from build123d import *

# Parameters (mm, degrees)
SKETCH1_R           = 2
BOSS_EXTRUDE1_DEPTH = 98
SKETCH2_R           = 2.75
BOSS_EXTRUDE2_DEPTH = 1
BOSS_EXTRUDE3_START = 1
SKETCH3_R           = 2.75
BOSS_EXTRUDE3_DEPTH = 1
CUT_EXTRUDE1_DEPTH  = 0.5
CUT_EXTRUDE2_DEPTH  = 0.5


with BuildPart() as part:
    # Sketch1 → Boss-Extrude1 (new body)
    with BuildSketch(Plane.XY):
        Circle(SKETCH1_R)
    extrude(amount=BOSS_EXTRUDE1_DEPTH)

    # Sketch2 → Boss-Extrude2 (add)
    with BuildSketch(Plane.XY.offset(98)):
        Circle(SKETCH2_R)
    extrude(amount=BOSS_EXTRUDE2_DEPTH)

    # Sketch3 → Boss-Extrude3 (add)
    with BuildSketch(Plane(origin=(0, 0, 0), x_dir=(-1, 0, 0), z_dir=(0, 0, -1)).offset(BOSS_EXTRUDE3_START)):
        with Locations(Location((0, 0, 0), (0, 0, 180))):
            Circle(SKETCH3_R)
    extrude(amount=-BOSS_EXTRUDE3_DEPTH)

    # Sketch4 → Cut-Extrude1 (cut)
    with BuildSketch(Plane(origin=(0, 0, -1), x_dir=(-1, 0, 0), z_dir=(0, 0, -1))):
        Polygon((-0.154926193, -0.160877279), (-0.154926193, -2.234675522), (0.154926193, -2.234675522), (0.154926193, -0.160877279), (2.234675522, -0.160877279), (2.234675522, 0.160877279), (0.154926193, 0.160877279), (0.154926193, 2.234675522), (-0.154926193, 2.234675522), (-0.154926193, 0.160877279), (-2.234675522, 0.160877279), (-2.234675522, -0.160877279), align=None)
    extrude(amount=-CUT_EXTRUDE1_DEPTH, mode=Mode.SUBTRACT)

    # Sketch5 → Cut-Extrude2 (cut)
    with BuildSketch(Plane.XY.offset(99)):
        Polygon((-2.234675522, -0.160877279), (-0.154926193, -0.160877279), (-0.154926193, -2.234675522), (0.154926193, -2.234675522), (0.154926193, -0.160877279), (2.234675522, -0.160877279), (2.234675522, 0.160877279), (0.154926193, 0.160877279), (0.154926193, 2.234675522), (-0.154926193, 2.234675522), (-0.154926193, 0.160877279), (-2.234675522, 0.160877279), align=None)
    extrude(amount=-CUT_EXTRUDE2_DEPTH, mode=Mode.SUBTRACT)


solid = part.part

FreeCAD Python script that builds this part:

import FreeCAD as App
import Part
import Sketcher
from FreeCAD import Vector


def add_polygon(sketch, points):
    """Adds a closed chain of lines whose ends are joined by coincident constraints."""
    first, n = sketch.GeometryCount, len(points)
    for a, b in zip(points, points[1:] + points[:1]):
        sketch.addGeometry(Part.LineSegment(App.Vector(*a, 0), App.Vector(*b, 0)), False)
    for i in range(n):
        sketch.addConstraint(Sketcher.Constraint("Coincident", first + i, 2, first + (i + 1) % n, 1))

doc = App.newDocument("Part")
body = doc.addObject("PartDesign::Body", "Body")

# Sketch on XY plane
sketch1 = body.newObject("Sketcher::SketchObject", "Sketch")
sketch1.AttachmentSupport = (doc.getObject("XY_Plane"), [""])
sketch1.MapMode = "FlatFace"
sketch1.addGeometry(Part.Circle(Vector(0, 0, 0), Vector(0, 0, 1), 2), False)
sketch1.addConstraint([
    Sketcher.Constraint("Coincident", 0, 3, -1, 1),
    Sketcher.Constraint("Diameter", 0, 4.0),
])
pad1 = body.newObject("PartDesign::Pad", "Pad")
pad1.Profile = sketch1
pad1.Length = 98

# Sketch on XY plane
sketch2 = body.newObject("Sketcher::SketchObject", "Sketch001")
sketch2.AttachmentSupport = (doc.getObject("XY_Plane"), [""])
sketch2.MapMode = "FlatFace"
sketch2.AttachmentOffset = App.Placement(Vector(0, 0, 98), App.Rotation())
sketch2.addGeometry(Part.Circle(Vector(0, 0, 0), Vector(0, 0, 1), 2.8), False)
sketch2.addConstraint([
    Sketcher.Constraint("Coincident", 0, 3, -1, 1),
    Sketcher.Constraint("Diameter", 0, 5.5),
])
pad2 = body.newObject("PartDesign::Pad", "Pad001")
pad2.Profile = sketch2
pad2.Length = 1

# Sketch on XY plane
sketch3 = body.newObject("Sketcher::SketchObject", "Sketch002")
sketch3.AttachmentSupport = (doc.getObject("XY_Plane"), [""])
sketch3.MapMode = "FlatFace"
sketch3.AttachmentOffset = App.Placement(Vector(0, 0, -1), App.Rotation())
sketch3.addGeometry(Part.Circle(Vector(0, 0, 0), Vector(0, 0, 1), 2.8), False)
sketch3.addConstraint([
    Sketcher.Constraint("Coincident", 0, 3, -1, 1),
    Sketcher.Constraint("Diameter", 0, 5.5),
])
pad3 = body.newObject("PartDesign::Pad", "Pad002")
pad3.Profile = sketch3
pad3.Length = 1

# Sketch on XY plane
sketch4 = body.newObject("Sketcher::SketchObject", "Sketch003")
sketch4.AttachmentSupport = (doc.getObject("XY_Plane"), [""])
sketch4.MapMode = "FlatFace"
sketch4.AttachmentOffset = App.Placement(Vector(0, 0, -1), App.Rotation())
add_polygon(sketch4, [(0.15, -0.16), (0.15, -2.23), (-0.15, -2.23), (-0.15, -0.16), (-2.23, -0.16), (-2.23, 0.16), (-0.15, 0.16), (-0.15, 2.23), (0.15, 2.23), (0.15, 0.16), (2.23, 0.16), (2.23, -0.16)])  # lines 0-11
sketch4.addConstraint([
    Sketcher.Constraint("Vertical", 0),
    Sketcher.Constraint("Horizontal", 1),
    Sketcher.Constraint("Vertical", 2),
    Sketcher.Constraint("Horizontal", 3),
    Sketcher.Constraint("Vertical", 4),
    Sketcher.Constraint("Horizontal", 5),
    Sketcher.Constraint("Vertical", 6),
    Sketcher.Constraint("Horizontal", 7),
    Sketcher.Constraint("Vertical", 8),
    Sketcher.Constraint("Horizontal", 9),
    Sketcher.Constraint("Vertical", 10),
    Sketcher.Constraint("Horizontal", 11),
    Sketcher.Constraint("Symmetric", 0, 2, 6, 2, -1, 1),
    Sketcher.Constraint("Symmetric", 2, 2, 8, 2, -1, 1),
    Sketcher.Constraint("Symmetric", 4, 2, 10, 2, -1, 1),
    Sketcher.Constraint("Symmetric", 5, 2, 8, 2, -2),
    Sketcher.Constraint("DistanceY", 0, 2, 0, 1, 2.073798),
    Sketcher.Constraint("DistanceX", 3, 2, 3, 1, 2.079749),
    Sketcher.Constraint("DistanceX", 3, 2, 0, 2, 2.389602),
    Sketcher.Constraint("DistanceY", 4, 1, 4, 2, 0.321755),
])
pocket1 = body.newObject("PartDesign::Pocket", "Pocket")
pocket1.Profile = sketch4
pocket1.Length = 0.5
pocket1.Reversed = True

# Sketch on XY plane
sketch5 = body.newObject("Sketcher::SketchObject", "Sketch004")
sketch5.AttachmentSupport = (doc.getObject("XY_Plane"), [""])
sketch5.MapMode = "FlatFace"
sketch5.AttachmentOffset = App.Placement(Vector(0, 0, 99), App.Rotation())
add_polygon(sketch5, [(-2.23, -0.16), (-0.15, -0.16), (-0.15, -2.23), (0.15, -2.23), (0.15, -0.16), (2.23, -0.16), (2.23, 0.16), (0.15, 0.16), (0.15, 2.23), (-0.15, 2.23), (-0.15, 0.16), (-2.23, 0.16)])  # lines 0-11
sketch5.addConstraint([
    Sketcher.Constraint("Horizontal", 0),
    Sketcher.Constraint("Vertical", 1),
    Sketcher.Constraint("Horizontal", 2),
    Sketcher.Constraint("Vertical", 3),
    Sketcher.Constraint("Horizontal", 4),
    Sketcher.Constraint("Vertical", 5),
    Sketcher.Constraint("Horizontal", 6),
    Sketcher.Constraint("Vertical", 7),
    Sketcher.Constraint("Horizontal", 8),
    Sketcher.Constraint("Vertical", 9),
    Sketcher.Constraint("Horizontal", 10),
    Sketcher.Constraint("Vertical", 11),
    Sketcher.Constraint("Symmetric", 0, 2, 6, 2, -1, 1),
    Sketcher.Constraint("Symmetric", 2, 2, 8, 2, -1, 1),
    Sketcher.Constraint("Symmetric", 4, 2, 10, 2, -1, 1),
    Sketcher.Constraint("Symmetric", 0, 2, 3, 2, -2),
    Sketcher.Constraint("DistanceY", 1, 2, 1, 1, 2.073798),
    Sketcher.Constraint("DistanceX", 0, 1, 0, 2, 2.079749),
    Sketcher.Constraint("DistanceX", 0, 2, 4, 2, 2.389602),
    Sketcher.Constraint("DistanceY", 5, 1, 5, 2, 0.321755),
])
pocket2 = body.newObject("PartDesign::Pocket", "Pocket001")
pocket2.Profile = sketch5
pocket2.Length = 0.5

doc.recompute()
